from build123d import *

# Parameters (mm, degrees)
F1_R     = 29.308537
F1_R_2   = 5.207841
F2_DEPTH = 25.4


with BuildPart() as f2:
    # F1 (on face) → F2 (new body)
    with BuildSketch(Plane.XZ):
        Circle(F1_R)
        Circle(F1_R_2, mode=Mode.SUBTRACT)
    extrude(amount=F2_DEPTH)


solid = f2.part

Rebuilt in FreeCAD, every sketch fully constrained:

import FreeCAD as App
import Part
import Sketcher
from FreeCAD import Vector
Q = App.Units.Quantity

doc = App.newDocument("Part")
body = doc.addObject("PartDesign::Body", "Body")

sketch1 = doc.addObject("Sketcher::SketchObject", "Sketch")
body.addObject(sketch1)
sketch1.AttachmentSupport = (doc.XZ_Plane, [""])
sketch1.MapMode = "FlatFace"
sketch1.addGeometry(Part.Circle(Vector(0, 0, 0), Vector(0, 0, 1), 29), False)
sketch1.addGeometry(Part.Circle(Vector(0, 0, 0), Vector(0, 0, 1), 5), False)
sketch1.addConstraint(Sketcher.Constraint("Coincident", 0, 3, -1, 1))
sketch1.addConstraint(Sketcher.Constraint("Coincident", 1, 3, -1, 1))
sketch1.addConstraint(Sketcher.Constraint("Diameter", 0, Q("58.617074 mm")))
sketch1.addConstraint(Sketcher.Constraint("Diameter", 1, Q("10.415682 mm")))
pad1 = doc.addObject("PartDesign::Pad", "Pad")
body.addObject(pad1)
pad1.Profile = sketch1
pad1.Length = Q("1 in")

doc.recompute()
